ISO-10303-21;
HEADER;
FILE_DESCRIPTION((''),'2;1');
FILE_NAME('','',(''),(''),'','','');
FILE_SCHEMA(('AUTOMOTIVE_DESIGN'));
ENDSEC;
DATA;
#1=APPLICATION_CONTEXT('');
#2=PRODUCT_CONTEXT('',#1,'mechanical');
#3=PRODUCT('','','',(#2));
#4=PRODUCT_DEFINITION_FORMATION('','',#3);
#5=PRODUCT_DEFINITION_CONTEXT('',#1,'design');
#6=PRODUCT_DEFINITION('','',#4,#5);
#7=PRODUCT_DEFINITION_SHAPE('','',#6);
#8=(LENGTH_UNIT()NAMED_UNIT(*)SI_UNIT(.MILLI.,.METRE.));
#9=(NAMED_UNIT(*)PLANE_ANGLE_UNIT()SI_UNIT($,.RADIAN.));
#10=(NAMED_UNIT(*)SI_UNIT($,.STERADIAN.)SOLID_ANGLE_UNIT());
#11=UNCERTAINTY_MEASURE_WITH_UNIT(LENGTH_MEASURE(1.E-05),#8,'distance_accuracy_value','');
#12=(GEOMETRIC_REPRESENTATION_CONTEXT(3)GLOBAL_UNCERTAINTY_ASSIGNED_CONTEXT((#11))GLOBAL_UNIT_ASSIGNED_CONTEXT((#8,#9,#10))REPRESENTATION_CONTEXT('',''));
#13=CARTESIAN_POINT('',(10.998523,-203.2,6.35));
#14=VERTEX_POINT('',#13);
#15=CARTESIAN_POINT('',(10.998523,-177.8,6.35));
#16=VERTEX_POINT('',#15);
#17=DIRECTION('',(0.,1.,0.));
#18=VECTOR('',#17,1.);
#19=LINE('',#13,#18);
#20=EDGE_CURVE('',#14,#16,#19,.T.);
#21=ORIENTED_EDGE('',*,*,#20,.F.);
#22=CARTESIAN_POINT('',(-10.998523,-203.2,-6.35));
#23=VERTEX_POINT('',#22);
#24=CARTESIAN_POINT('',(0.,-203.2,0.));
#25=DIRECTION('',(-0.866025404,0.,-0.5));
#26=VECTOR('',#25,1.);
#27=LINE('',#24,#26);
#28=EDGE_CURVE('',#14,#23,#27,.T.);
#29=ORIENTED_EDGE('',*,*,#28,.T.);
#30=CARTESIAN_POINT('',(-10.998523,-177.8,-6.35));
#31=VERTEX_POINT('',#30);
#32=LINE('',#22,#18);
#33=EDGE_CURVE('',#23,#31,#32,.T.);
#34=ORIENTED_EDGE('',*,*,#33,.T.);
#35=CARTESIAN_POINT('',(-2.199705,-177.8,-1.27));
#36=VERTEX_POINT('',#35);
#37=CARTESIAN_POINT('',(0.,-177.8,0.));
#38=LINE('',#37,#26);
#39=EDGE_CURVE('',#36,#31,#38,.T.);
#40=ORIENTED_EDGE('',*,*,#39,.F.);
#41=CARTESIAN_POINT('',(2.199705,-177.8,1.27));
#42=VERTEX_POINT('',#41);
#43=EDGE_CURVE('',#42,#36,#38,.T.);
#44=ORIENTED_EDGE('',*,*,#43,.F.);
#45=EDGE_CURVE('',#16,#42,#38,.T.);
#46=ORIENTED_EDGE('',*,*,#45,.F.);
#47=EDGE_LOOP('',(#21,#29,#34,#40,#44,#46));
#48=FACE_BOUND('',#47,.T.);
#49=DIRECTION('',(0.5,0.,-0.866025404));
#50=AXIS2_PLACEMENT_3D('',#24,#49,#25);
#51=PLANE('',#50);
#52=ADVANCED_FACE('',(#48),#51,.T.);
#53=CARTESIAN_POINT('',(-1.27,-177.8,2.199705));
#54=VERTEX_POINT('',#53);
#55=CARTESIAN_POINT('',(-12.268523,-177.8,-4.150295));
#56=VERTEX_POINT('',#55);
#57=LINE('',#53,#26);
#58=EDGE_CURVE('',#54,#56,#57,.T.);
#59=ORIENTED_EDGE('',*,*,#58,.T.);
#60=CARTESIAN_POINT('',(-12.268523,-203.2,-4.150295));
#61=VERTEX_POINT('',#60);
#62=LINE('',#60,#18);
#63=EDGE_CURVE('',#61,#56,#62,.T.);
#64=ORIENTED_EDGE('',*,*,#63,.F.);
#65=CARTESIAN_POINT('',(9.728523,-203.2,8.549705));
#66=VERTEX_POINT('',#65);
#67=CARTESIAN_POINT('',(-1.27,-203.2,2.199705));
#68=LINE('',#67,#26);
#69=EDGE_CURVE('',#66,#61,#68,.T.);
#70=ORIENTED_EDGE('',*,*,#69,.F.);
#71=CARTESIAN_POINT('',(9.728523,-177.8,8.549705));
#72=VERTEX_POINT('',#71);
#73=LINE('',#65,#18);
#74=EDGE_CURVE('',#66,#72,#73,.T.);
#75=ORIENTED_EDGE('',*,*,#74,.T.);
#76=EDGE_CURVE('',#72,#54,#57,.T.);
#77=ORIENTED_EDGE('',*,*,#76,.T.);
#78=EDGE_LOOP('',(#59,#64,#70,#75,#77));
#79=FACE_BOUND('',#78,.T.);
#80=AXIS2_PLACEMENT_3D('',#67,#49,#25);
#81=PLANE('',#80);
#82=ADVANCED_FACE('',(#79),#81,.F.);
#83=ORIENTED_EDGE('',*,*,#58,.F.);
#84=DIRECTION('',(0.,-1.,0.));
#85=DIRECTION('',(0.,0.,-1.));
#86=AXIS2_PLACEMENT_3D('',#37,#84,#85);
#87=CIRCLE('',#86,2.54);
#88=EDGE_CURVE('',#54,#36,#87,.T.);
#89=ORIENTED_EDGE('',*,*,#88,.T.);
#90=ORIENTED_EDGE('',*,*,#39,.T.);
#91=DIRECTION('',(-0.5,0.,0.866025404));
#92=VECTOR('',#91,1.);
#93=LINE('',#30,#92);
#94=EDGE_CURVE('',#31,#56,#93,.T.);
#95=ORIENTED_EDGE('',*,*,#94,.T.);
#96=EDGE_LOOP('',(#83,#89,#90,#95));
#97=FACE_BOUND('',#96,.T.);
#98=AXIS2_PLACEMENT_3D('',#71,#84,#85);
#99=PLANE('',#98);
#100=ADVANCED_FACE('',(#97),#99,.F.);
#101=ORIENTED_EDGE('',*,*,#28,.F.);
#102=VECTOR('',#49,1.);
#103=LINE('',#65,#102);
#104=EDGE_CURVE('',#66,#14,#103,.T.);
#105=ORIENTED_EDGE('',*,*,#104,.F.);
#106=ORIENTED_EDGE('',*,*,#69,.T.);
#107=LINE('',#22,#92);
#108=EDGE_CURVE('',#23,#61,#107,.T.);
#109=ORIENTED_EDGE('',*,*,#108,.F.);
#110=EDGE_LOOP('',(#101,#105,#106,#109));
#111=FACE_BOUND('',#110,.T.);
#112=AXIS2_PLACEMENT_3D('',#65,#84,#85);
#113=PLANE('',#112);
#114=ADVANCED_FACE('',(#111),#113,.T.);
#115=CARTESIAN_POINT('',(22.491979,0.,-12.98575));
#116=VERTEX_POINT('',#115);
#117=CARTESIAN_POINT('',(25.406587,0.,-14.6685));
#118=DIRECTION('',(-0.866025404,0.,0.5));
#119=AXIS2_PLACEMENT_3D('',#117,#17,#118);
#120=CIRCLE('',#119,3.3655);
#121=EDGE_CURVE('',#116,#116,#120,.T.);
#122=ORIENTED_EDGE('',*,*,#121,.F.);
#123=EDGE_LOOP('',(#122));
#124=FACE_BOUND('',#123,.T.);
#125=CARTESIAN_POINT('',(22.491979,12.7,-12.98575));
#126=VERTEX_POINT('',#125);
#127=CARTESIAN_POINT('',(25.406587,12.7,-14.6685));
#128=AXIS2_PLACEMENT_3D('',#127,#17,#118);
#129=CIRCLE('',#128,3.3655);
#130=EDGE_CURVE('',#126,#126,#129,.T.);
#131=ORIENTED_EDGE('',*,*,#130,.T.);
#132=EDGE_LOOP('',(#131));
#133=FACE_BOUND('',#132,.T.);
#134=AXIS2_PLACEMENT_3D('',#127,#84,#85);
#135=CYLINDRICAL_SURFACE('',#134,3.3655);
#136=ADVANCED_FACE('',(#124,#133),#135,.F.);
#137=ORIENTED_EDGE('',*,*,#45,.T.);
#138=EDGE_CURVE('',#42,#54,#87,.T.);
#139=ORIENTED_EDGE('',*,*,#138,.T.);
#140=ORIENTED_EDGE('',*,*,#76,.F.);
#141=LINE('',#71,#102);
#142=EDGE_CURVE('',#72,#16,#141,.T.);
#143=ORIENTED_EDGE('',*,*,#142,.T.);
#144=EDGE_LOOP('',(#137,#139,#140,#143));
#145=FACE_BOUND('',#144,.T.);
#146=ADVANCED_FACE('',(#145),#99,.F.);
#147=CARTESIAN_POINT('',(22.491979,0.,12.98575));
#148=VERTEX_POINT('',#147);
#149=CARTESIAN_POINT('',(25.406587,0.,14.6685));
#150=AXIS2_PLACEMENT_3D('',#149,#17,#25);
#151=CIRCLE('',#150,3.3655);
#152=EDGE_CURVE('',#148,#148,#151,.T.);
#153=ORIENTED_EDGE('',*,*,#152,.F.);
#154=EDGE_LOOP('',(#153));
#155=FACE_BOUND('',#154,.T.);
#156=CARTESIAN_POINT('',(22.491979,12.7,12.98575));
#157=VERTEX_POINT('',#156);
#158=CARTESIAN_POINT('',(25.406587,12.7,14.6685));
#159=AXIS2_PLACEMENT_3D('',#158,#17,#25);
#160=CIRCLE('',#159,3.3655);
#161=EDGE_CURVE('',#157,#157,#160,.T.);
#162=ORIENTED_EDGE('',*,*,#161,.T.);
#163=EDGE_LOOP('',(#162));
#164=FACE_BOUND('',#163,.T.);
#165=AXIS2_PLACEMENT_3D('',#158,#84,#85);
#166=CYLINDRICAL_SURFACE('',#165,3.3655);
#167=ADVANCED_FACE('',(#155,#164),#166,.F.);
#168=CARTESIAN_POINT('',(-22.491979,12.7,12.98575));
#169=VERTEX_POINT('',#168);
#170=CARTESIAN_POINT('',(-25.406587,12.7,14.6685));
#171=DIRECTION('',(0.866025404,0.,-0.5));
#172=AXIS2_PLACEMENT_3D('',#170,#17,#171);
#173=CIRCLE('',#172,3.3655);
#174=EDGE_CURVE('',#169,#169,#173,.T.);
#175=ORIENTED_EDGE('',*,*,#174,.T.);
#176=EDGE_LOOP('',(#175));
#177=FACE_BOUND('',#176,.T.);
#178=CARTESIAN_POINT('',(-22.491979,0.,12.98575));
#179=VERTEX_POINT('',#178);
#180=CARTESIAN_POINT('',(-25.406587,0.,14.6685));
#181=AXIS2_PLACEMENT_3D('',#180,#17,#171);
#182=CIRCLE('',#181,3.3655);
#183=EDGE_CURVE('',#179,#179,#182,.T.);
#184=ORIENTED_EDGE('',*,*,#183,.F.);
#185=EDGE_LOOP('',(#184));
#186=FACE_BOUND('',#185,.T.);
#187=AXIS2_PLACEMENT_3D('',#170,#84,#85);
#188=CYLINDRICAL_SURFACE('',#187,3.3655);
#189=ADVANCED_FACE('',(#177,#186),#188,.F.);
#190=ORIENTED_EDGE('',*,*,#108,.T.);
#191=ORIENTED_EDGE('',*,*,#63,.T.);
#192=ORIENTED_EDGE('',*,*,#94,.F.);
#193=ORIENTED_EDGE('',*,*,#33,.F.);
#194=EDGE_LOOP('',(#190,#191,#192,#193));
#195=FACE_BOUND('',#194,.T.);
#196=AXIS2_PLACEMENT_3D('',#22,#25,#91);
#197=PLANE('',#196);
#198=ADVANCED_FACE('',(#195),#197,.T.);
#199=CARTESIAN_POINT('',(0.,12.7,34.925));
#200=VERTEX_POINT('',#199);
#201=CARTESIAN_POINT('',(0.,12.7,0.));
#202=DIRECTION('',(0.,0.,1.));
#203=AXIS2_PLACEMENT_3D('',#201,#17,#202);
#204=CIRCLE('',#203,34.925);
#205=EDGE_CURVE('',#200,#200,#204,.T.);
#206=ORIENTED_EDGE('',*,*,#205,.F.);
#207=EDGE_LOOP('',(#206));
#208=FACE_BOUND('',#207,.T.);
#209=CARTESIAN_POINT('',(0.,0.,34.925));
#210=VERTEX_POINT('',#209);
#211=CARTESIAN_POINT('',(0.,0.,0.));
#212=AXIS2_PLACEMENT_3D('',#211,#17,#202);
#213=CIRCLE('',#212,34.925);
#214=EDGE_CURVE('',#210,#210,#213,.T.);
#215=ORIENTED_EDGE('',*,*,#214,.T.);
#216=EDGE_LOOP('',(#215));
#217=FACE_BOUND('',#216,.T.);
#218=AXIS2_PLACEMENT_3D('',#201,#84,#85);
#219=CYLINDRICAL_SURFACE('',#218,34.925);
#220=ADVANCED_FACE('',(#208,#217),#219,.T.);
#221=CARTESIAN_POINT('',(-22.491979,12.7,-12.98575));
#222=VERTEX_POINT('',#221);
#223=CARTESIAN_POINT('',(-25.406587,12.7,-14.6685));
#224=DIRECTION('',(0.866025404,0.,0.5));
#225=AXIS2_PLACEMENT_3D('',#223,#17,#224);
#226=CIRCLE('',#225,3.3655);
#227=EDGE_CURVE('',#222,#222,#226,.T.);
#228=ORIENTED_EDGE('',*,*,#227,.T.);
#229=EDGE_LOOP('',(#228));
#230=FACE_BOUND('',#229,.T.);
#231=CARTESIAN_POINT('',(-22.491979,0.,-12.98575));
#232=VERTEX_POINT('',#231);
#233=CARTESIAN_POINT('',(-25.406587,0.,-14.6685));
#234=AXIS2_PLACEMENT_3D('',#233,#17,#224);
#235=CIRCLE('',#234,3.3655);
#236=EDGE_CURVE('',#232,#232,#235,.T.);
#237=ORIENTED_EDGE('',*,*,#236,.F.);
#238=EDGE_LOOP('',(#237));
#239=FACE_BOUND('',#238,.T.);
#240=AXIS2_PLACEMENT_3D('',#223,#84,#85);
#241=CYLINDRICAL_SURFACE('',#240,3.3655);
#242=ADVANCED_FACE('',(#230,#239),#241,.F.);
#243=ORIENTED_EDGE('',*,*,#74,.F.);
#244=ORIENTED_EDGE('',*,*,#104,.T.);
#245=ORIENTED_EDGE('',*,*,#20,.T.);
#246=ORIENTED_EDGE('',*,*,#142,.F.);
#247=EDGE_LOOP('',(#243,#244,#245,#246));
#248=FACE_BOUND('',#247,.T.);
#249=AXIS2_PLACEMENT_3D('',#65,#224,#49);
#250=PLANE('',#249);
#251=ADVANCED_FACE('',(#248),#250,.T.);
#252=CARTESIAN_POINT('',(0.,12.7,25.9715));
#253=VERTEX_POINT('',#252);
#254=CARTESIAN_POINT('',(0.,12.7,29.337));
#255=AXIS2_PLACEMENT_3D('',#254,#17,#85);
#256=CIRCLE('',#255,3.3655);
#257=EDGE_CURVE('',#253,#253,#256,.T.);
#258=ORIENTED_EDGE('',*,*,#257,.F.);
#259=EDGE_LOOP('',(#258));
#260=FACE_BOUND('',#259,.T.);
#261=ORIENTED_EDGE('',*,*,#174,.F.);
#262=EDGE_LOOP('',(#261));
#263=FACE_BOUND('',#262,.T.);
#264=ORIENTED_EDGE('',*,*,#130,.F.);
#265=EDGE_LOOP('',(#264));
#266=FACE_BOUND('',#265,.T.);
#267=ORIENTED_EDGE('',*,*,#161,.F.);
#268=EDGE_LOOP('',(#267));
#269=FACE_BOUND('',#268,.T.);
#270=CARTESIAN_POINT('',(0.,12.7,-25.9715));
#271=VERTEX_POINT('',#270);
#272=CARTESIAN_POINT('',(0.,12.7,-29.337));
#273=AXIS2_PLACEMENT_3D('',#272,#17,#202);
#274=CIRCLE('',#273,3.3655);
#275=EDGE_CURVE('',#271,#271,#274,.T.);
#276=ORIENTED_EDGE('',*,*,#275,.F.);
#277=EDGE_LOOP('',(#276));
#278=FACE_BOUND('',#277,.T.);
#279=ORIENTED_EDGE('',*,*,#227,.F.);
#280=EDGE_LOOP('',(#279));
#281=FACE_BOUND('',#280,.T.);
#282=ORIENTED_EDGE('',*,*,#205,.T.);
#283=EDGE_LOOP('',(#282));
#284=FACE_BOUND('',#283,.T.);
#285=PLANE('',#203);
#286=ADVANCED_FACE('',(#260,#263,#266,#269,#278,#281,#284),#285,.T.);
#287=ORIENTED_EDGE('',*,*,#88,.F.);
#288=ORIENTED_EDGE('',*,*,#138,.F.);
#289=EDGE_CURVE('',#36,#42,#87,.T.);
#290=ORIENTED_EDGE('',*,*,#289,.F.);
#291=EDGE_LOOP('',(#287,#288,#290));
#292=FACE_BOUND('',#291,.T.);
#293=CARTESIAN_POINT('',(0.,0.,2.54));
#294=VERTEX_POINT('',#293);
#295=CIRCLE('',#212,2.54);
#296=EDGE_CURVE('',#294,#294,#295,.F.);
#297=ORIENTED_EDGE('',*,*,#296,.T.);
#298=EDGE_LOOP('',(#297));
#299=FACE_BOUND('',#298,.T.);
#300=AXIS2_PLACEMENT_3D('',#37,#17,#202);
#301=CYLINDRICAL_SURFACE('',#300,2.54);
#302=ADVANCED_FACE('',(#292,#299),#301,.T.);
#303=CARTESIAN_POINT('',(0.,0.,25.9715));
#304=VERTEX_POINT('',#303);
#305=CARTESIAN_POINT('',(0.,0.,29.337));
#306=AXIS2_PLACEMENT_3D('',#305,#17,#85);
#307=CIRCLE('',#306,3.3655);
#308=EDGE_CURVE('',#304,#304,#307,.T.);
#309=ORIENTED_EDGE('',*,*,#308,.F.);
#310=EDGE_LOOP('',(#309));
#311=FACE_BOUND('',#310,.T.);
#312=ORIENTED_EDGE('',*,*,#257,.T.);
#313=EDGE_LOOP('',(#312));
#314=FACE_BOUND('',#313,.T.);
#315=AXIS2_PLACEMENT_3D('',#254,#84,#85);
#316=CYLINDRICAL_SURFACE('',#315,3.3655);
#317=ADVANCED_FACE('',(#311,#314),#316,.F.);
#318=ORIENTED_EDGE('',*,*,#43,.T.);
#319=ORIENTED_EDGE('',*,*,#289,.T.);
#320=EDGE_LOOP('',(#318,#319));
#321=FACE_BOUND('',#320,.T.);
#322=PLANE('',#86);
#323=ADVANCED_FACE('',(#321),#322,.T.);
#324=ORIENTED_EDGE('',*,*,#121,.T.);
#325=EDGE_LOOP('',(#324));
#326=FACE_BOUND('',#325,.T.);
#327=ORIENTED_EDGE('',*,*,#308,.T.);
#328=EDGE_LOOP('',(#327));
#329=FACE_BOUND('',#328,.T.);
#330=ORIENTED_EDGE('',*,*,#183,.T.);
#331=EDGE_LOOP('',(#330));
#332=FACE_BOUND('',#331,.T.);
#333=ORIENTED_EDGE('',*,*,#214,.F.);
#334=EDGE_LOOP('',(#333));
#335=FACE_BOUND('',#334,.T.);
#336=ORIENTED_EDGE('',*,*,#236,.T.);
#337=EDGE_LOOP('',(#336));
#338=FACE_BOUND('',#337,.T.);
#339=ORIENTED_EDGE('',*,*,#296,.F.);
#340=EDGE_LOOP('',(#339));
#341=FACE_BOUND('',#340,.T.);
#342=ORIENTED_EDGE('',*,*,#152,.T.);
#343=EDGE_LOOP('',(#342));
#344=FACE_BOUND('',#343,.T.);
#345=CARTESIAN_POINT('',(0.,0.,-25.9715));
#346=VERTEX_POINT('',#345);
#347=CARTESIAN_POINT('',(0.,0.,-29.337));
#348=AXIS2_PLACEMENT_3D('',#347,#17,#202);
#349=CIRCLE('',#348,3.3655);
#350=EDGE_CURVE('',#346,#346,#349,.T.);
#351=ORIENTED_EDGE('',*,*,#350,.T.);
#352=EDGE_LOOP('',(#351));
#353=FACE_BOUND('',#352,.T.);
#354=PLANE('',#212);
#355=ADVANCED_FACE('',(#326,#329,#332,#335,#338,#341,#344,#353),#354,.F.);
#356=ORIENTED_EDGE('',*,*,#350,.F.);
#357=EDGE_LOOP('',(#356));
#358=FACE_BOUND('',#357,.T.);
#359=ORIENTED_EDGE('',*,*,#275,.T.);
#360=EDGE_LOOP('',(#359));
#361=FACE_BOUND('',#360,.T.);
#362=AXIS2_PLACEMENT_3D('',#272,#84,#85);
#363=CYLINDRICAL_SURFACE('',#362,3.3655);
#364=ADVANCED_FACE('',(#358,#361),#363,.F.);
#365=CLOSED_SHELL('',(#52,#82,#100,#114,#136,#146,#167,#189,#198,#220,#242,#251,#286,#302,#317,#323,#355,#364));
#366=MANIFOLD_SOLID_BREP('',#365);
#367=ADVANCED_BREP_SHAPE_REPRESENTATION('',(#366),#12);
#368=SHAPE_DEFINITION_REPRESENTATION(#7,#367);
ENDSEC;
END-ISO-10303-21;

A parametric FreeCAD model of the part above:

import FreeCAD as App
import Part
import Sketcher
from FreeCAD import Vector
Q = App.Units.Quantity

doc = App.newDocument("Part")
body = doc.addObject("PartDesign::Body", "Body")

# Sketch on XZ plane
sketch1 = body.newObject("Sketcher::SketchObject", "Sketch")
sketch1.AttachmentSupport = (doc.getObject("XZ_Plane"), [""])
sketch1.MapMode = "FlatFace"
sketch1.addGeometry(Part.Circle(Vector(0, 0, 0), Vector(0, 0, 1), 35), False)
sketch1.addConstraint(Sketcher.Constraint("Coincident", 0, 3, -1, 1))
sketch1.addConstraint(Sketcher.Constraint("Diameter", 0, Q("2.75 in")))
pad1 = body.newObject("PartDesign::Pad", "Pad")
pad1.Profile = sketch1
pad1.Length = Q("0.5 in")
pad1.Reversed = True

# Sketch on XZ plane
sketch2 = body.newObject("Sketcher::SketchObject", "Sketch001")
sketch2.AttachmentSupport = (doc.getObject("XZ_Plane"), [""])
sketch2.MapMode = "FlatFace"
sketch2.addGeometry(Part.Circle(Vector(0, -29.3, 0), Vector(0, 0, 1), 3.4), False)
sketch2.addConstraint(Sketcher.Constraint("PointOnObject", 0, 3, -2))
sketch2.addConstraint(Sketcher.Constraint("Diameter", 0, Q("0.265 in")))
sketch2.addConstraint(Sketcher.Constraint("DistanceY", 0, 3, -1, 1, Q("1.155 in")))
pocket1 = body.newObject("PartDesign::Pocket", "Pocket")
pocket1.Profile = sketch2
pocket1.Length = Q("0.5 in")
doc.recompute()

polarpattern = body.newObject("PartDesign::PolarPattern", "PolarPattern")
polarpattern.Originals = [pocket1]
polarpattern.Axis = (doc.getObject("Y_Axis"), [""])
polarpattern.Angle = 360
polarpattern.Occurrences = 6
body.Tip = polarpattern

# Sketch on XZ plane
sketch3 = body.newObject("Sketcher::SketchObject", "Sketch002")
sketch3.AttachmentSupport = (doc.getObject("XZ_Plane"), [""])
sketch3.MapMode = "FlatFace"
sketch3.addGeometry(Part.Circle(Vector(0, 0, 0), Vector(0, 0, 1), 2.5), False)
sketch3.addConstraint(Sketcher.Constraint("Coincident", 0, 3, -1, 1))
sketch3.addConstraint(Sketcher.Constraint("Diameter", 0, Q("0.2 in")))
pad2 = body.newObject("PartDesign::Pad", "Pad001")
pad2.Profile = sketch3
pad2.Length = Q("7 in")

# Sketch on XZ plane
sketch4 = body.newObject("Sketcher::SketchObject", "Sketch003")
sketch4.AttachmentSupport = (doc.getObject("XZ_Plane"), [""])
sketch4.MapMode = "FlatFace"
sketch4.AttachmentOffset = App.Placement(Vector(0, 0, 7 * 25.4), App.Rotation())
sketch4.addGeometry(Part.LineSegment(Vector(-11, -6.3, 0), Vector(11, 6.3, 0)), False)
sketch4.addGeometry(Part.LineSegment(Vector(11, 6.3, 0), Vector(9.7, 8.5, 0)), False)
sketch4.addGeometry(Part.LineSegment(Vector(9.7, 8.5, 0), Vector(-12.3, -4.2, 0)), False)
sketch4.addGeometry(Part.LineSegment(Vector(-12.3, -4.2, 0), Vector(-11, -6.3, 0)), False)
sketch4.addConstraint(Sketcher.Constraint("Coincident", 0, 2, 1, 1))
sketch4.addConstraint(Sketcher.Constraint("Coincident", 1, 2, 2, 1))
sketch4.addConstraint(Sketcher.Constraint("Coincident", 2, 2, 3, 1))
sketch4.addConstraint(Sketcher.Constraint("Coincident", 3, 2, 0, 1))
sketch4.addConstraint(Sketcher.Constraint("Symmetric", 0, 2, 3, 2, -1, 1))
sketch4.addConstraint(Sketcher.Constraint("Perpendicular", 0, 1))
sketch4.addConstraint(Sketcher.Constraint("Perpendicular", 1, 2))
sketch4.addConstraint(Sketcher.Constraint("Perpendicular", 2, 3))
sketch4.addConstraint(Sketcher.Constraint("Distance", 0, Q("1 in")))
sketch4.addConstraint(Sketcher.Constraint("Angle", 0, Q("30 deg")))
sketch4.addConstraint(Sketcher.Constraint("Distance", 1, Q("0.1 in")))
pad3 = body.newObject("PartDesign::Pad", "Pad002")
pad3.Profile = sketch4
pad3.Length = Q("1 in")

doc.recompute()
